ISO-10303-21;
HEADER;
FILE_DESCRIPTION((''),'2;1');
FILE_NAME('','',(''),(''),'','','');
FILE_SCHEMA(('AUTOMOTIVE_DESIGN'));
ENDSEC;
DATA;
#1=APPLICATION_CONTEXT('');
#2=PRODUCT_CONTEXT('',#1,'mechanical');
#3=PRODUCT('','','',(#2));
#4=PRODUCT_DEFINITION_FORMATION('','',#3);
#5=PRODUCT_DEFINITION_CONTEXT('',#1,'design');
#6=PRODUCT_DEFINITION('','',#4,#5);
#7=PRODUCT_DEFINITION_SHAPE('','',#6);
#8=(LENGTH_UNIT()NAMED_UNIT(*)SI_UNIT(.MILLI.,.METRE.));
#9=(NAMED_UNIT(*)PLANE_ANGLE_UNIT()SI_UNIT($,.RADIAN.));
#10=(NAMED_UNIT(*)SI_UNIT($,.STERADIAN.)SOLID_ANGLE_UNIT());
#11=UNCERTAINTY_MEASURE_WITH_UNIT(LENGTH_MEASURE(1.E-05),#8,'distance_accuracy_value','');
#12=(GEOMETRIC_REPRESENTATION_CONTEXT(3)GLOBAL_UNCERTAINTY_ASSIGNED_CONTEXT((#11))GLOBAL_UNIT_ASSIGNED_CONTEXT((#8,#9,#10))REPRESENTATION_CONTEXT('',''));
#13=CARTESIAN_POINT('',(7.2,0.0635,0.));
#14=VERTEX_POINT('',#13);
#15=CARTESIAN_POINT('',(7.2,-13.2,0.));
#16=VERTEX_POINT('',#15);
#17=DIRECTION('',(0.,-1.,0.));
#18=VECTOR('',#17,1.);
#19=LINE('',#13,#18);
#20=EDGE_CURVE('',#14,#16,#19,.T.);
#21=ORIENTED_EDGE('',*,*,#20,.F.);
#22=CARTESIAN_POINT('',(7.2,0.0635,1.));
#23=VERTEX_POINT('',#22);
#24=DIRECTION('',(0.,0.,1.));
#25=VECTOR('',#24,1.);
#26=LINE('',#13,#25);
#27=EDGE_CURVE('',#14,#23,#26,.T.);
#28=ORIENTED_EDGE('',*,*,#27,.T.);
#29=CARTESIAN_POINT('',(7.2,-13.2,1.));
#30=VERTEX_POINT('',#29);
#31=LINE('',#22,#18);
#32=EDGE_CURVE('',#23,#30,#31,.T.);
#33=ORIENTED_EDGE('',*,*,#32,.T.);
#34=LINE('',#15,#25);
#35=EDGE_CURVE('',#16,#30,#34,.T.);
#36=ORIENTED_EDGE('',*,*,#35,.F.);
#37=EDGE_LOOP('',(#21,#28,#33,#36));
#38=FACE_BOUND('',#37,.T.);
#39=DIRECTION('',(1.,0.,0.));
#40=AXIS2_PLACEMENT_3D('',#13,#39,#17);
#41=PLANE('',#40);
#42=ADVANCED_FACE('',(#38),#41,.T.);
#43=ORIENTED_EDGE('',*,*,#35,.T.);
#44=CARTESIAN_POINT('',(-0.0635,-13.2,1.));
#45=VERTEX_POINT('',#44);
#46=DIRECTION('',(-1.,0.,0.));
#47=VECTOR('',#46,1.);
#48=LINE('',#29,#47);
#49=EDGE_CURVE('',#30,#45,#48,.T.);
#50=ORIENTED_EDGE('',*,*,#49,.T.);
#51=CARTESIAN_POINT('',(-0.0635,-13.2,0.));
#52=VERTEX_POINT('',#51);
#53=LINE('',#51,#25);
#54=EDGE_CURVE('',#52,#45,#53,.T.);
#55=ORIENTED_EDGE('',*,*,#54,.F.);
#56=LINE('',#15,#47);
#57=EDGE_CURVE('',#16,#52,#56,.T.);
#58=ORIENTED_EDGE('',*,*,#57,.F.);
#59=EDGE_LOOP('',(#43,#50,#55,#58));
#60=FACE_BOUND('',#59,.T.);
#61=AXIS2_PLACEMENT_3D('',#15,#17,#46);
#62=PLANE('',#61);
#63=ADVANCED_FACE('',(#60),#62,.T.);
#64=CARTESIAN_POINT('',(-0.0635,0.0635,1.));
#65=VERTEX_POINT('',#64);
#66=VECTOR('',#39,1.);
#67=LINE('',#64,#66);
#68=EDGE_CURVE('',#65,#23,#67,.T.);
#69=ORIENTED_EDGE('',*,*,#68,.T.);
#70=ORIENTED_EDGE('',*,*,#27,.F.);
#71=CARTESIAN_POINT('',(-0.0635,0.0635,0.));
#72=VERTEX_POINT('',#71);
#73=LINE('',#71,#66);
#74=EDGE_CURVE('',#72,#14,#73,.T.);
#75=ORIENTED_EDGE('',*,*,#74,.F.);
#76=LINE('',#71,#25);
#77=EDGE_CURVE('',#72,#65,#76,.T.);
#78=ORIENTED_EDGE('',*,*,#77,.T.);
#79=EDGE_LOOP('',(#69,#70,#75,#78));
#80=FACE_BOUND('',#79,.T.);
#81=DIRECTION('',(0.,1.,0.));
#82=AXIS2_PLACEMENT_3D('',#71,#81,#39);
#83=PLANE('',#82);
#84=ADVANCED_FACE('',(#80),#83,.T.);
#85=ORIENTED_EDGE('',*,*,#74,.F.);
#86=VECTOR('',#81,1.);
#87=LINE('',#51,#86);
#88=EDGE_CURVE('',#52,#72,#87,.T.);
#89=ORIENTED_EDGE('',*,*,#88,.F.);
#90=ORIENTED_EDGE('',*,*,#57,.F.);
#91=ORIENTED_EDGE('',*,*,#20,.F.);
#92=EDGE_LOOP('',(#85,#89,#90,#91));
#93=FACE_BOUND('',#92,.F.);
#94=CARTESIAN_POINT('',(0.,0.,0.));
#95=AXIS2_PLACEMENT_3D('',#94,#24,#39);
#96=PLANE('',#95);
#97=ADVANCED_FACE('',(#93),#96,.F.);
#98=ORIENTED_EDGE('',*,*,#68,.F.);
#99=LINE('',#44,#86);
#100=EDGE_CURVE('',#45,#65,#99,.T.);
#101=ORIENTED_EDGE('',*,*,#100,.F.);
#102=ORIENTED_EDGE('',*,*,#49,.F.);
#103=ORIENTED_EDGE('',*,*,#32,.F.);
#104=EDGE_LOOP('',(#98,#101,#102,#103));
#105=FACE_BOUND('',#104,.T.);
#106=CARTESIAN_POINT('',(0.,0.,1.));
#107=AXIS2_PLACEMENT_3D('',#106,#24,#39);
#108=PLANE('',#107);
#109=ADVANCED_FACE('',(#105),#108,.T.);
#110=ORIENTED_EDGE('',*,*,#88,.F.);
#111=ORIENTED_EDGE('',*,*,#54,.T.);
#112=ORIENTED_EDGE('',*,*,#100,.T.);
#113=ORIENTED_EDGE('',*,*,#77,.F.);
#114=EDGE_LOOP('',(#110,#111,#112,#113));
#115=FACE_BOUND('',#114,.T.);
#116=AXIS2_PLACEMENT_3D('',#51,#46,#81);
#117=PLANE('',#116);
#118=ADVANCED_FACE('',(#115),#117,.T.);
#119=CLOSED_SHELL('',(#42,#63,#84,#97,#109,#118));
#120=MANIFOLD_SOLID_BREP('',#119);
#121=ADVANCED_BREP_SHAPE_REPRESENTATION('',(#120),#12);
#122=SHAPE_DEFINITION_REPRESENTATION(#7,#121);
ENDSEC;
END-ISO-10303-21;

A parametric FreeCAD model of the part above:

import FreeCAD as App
import Part
import Sketcher
Q = App.Units.Quantity

doc = App.newDocument("Part")
params = doc.addObject("Spreadsheet::Sheet", "Params")
for row, (alias, value) in enumerate([
    ("pad1_length", "1 mm"),
], start=1):
    params.set(f"A{row}", alias)
    params.set(f"B{row}", "=" + value)
    params.setAlias(f"B{row}", alias)

body = doc.addObject("PartDesign::Body", "Body")

# Sketch on XY plane
sketch1 = doc.addObject("Sketcher::SketchObject", "Sketch")
body.addObject(sketch1)
sketch1.AttachmentSupport = (doc.XY_Plane, [""])
sketch1.MapMode = "FlatFace"
sketch1.addGeometry([
    Part.LineSegment(App.Vector(7, 0, 0), App.Vector(0, 0, 0)),
    Part.LineSegment(App.Vector(0, 0, 0), App.Vector(0, -13, 0)),
    Part.LineSegment(App.Vector(0, -13, 0), App.Vector(7, -13, 0)),
    Part.LineSegment(App.Vector(7, -13, 0), App.Vector(7, 0, 0)),
], False)
sketch1.addConstraint([
    Sketcher.Constraint("Coincident", 0, 2, 1, 1),
    Sketcher.Constraint("Coincident", 1, 2, 2, 1),
    Sketcher.Constraint("Coincident", 2, 2, 3, 1),
    Sketcher.Constraint("Coincident", 3, 2, 0, 1),
    Sketcher.Constraint("Horizontal", 0),
    Sketcher.Constraint("Vertical", 1),
    Sketcher.Constraint("Horizontal", 2),
    Sketcher.Constraint("Vertical", 3),
    Sketcher.Constraint("DistanceY", 1, 2, -1, 1, Q("13.2 mm")),
    Sketcher.Constraint("DistanceX", -1, 1, 2, 2, Q("7.2 mm")),
    Sketcher.Constraint("DistanceX", 0, 2, 0, 1, Q("7.2635 mm")),
    Sketcher.Constraint("DistanceY", 1, 2, 1, 1, Q("13.2635 mm")),
])
pad1 = doc.addObject("PartDesign::Pad", "Pad")
body.addObject(pad1)
pad1.Profile = sketch1
pad1.setExpression("Length", "Params.pad1_length")

doc.recompute()
